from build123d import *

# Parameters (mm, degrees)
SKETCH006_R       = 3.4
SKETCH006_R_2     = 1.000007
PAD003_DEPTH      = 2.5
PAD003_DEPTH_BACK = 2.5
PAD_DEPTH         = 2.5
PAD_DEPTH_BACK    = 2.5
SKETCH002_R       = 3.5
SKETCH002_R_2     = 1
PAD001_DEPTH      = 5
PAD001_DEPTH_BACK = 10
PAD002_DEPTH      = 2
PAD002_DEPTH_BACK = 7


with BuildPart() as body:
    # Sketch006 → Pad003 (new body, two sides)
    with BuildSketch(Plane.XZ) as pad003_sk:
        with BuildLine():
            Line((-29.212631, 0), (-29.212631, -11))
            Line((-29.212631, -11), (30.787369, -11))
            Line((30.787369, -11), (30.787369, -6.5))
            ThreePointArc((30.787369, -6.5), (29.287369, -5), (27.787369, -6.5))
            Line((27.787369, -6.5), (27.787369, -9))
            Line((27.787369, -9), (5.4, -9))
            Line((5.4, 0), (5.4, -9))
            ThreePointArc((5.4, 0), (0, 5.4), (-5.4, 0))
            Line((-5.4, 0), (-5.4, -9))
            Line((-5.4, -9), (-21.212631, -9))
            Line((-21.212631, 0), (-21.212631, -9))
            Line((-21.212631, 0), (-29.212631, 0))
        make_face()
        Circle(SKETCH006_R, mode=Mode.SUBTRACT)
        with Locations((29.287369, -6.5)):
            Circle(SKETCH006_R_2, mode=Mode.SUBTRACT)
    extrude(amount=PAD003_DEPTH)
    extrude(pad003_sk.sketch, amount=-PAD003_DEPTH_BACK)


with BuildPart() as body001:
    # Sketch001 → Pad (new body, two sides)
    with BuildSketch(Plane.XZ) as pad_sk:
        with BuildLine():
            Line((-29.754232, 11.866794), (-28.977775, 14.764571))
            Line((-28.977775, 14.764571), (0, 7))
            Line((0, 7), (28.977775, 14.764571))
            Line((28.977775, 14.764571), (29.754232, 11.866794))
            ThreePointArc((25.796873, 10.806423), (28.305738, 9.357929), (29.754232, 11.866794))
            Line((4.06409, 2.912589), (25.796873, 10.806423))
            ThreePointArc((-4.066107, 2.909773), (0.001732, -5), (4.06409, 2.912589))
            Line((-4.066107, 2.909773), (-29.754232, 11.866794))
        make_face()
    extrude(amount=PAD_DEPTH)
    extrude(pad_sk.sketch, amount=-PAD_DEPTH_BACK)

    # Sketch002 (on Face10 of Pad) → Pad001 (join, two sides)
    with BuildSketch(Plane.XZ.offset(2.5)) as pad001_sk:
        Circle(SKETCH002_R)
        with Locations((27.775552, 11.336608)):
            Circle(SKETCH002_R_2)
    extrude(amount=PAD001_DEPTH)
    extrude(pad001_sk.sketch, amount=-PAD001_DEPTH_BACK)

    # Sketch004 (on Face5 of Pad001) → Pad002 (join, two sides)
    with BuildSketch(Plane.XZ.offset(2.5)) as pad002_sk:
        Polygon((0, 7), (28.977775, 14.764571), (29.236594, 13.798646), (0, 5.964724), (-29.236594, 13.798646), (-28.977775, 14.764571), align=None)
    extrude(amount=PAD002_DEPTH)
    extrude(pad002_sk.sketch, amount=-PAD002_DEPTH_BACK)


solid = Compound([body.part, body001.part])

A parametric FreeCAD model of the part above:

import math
import FreeCAD as App
import Part
import Sketcher

V = App.Vector
Q = App.Units.Quantity


def add_polygon(sketch, points):
    """Adds a closed chain of lines whose ends are joined by coincident constraints."""
    first, n = sketch.GeometryCount, len(points)
    for a, b in zip(points, points[1:] + points[:1]):
        sketch.addGeometry(Part.LineSegment(App.Vector(*a, 0), App.Vector(*b, 0)), False)
    for i in range(n):
        sketch.addConstraint(Sketcher.Constraint("Coincident", first + i, 2, first + (i + 1) % n, 1))

doc = App.newDocument("Part")
body = doc.addObject("PartDesign::Body", "Body")

sketch1 = body.newObject("Sketcher::SketchObject", "Sketch")
sketch1.AttachmentSupport = (doc.getObject("XZ_Plane"), [""])
sketch1.MapMode = "FlatFace"
sketch1.addGeometry([
    Part.LineSegment(V(-29.212631, 0, 0), V(-29.212631, -11, 0)),
    Part.LineSegment(V(-29.212631, -11, 0), V(30.787369, -11, 0)),
    Part.LineSegment(V(30.787369, -11, 0), V(30.787369, -6.5, 0)),
    Part.ArcOfCircle(Part.Circle(V(29.287369, -6.5, 0), V(0, 0, 1), 1.5), math.radians(0), math.radians(180)),
    Part.LineSegment(V(27.787369, -6.5, 0), V(27.787369, -9, 0)),
    Part.LineSegment(V(27.787369, -9, 0), V(5.4, -9, 0)),
    Part.LineSegment(V(5.4, -9, 0), V(5.4, 0, 0)),
    Part.ArcOfCircle(Part.Circle(V(0, 0, 0), V(0, 0, 1), 5.4), math.radians(0), math.radians(180)),
    Part.LineSegment(V(-5.4, 0, 0), V(-5.4, -9, 0)),
    Part.LineSegment(V(-5.4, -9, 0), V(-21.212631, -9, 0)),
    Part.LineSegment(V(-21.212631, -9, 0), V(-21.212631, 0, 0)),
    Part.LineSegment(V(-21.212631, 0, 0), V(-29.212631, 0, 0)),
    Part.Circle(V(29.287369, -6.5, 0), V(0, 0, 1), 1.000007),
    Part.Circle(V(0, 0, 0), V(0, 0, 1), 3.4),
], False)
sketch1.addConstraint([
    Sketcher.Constraint("Coincident", 0, 2, 1, 1),
    Sketcher.Constraint("Coincident", 1, 2, 2, 1),
    Sketcher.Constraint("Tangent", 2, 2, 3, 1),
    Sketcher.Constraint("Tangent", 3, 2, 4, 1),
    Sketcher.Constraint("Coincident", 4, 2, 5, 1),
    Sketcher.Constraint("Coincident", 5, 2, 6, 1),
    Sketcher.Constraint("Tangent", 6, 2, 7, 1),
    Sketcher.Constraint("Tangent", 7, 2, 8, 1),
    Sketcher.Constraint("Coincident", 8, 2, 9, 1),
    Sketcher.Constraint("Coincident", 9, 2, 10, 1),
    Sketcher.Constraint("Coincident", 10, 2, 11, 1),
    Sketcher.Constraint("Coincident", 11, 2, 0, 1),
    Sketcher.Constraint("Vertical", 0),
    Sketcher.Constraint("Horizontal", 1),
    Sketcher.Constraint("Vertical", 2),
    Sketcher.Constraint("Vertical", 4),
    Sketcher.Constraint("Horizontal", 5),
    Sketcher.Constraint("Vertical", 6),
    Sketcher.Constraint("Vertical", 8),
    Sketcher.Constraint("Horizontal", 9),
    Sketcher.Constraint("Vertical", 10),
    Sketcher.Constraint("Horizontal", 11),
    Sketcher.Constraint("Coincident", 7, 3, -1, 1),
    Sketcher.Constraint("Coincident", 13, 3, -1, 1),
    Sketcher.Constraint("Coincident", 12, 3, 3, 3),
    Sketcher.Constraint("PointOnObject", 10, 2, -1),
    Sketcher.Constraint("Horizontal", 5, 2, 8, 2),
    Sketcher.Constraint("Diameter", 13, Q("6.8 mm")),
    Sketcher.Constraint("Radius", 3, Q("1.5 mm")),
    Sketcher.Constraint("Radius", 7, Q("5.4 mm")),
    Sketcher.Constraint("DistanceX", 1, 1, 1, 2, Q("60 mm")),
    Sketcher.Constraint("DistanceX", 11, 2, 11, 1, Q("8 mm")),
    Sketcher.Constraint("DistanceY", 0, 2, 0, 1, Q("11 mm")),
    Sketcher.Constraint("DistanceY", 6, 1, 6, 2, Q("9 mm")),
    Sketcher.Constraint("DistanceY", 2, 1, 2, 2, Q("4.5 mm")),
    Sketcher.Constraint("Diameter", 12, Q("2.000014 mm")),
    Sketcher.Constraint("DistanceX", 5, 2, 5, 1, Q("22.387369 mm")),
])
pad1 = body.newObject("PartDesign::Pad", "Pad")
pad1.Profile = sketch1
pad1.Type = "TwoLengths"
pad1.Length = 2.5
pad1.Length2 = 2.5
body2 = doc.addObject("PartDesign::Body", "Body001")

sketch2 = body2.newObject("Sketcher::SketchObject", "Sketch001")
sketch2.AttachmentSupport = (doc.getObject("XZ_Plane001"), [""])
sketch2.MapMode = "FlatFace"
sketch2.addGeometry([
    Part.LineSegment(V(-28.977775, 14.764571, 0), V(-29.754232, 11.866794, 0)),
    Part.LineSegment(V(-29.754232, 11.866794, 0), V(-4.066107, 2.909773, 0)),
    Part.ArcOfCircle(Part.Circle(V(0, 0, 0), V(0, 0, 1), 5), math.radians(144.411867), math.radians(395.627823)),
    Part.LineSegment(V(4.06409, 2.912589, 0), V(25.796873, 10.806423, 0)),
    Part.ArcOfCircle(Part.Circle(V(27.775552, 11.336609, 0), V(0, 0, 1), 2.04848), math.radians(-165.000002), math.radians(14.999998)),
    Part.LineSegment(V(29.754232, 11.866794, 0), V(28.977775, 14.764571, 0)),
    Part.LineSegment(V(28.977775, 14.764571, 0), V(0, 7, 0)),
    Part.LineSegment(V(0, 7, 0), V(-28.977775, 14.764571, 0)),
], False)
sketch2.addConstraint([
    Sketcher.Constraint("Coincident", 0, 2, 1, 1),
    Sketcher.Constraint("Coincident", 1, 2, 2, 1),
    Sketcher.Constraint("Coincident", 2, 2, 3, 1),
    Sketcher.Constraint("Coincident", 3, 2, 4, 1),
    Sketcher.Constraint("Tangent", 4, 2, 5, 1),
    Sketcher.Constraint("Coincident", 5, 2, 6, 1),
    Sketcher.Constraint("Coincident", 6, 2, 7, 1),
    Sketcher.Constraint("Coincident", 7, 2, 0, 1),
    Sketcher.Constraint("Coincident", 2, 3, -1, 1),
    Sketcher.Constraint("Symmetric", 0, 2, 4, 2, -2),
    Sketcher.Constraint("Symmetric", 5, 2, 7, 2, -2),
    Sketcher.Constraint("PointOnObject", 6, 2, -2),
    Sketcher.Constraint("Perpendicular", 5, 6),
    Sketcher.Constraint("Radius", 2, Q("5 mm")),
    Sketcher.Constraint("Angle", 0, Q("-105 deg")),
    Sketcher.Constraint("Distance", 0, Q("3 mm")),
    Sketcher.Constraint("Distance", 6, Q("30 mm")),
    Sketcher.Constraint("DistanceY", -1, 1, 6, 2, Q("7 mm")),
    Sketcher.Constraint("Radius", 4, Q("2.04848 mm")),
    Sketcher.Constraint("DistanceX", 3, 2, 5, 2, Q("3.180902 mm")),
    Sketcher.Constraint("DistanceY", 1, 2, 7, 2, Q("11.854798 mm")),
    Sketcher.Constraint("Distance", 3, Q("23.121991 mm")),
])
pad2 = body2.newObject("PartDesign::Pad", "Pad001")
pad2.Profile = sketch2
pad2.Type = "TwoLengths"
pad2.Length = 2.5
pad2.Length2 = 2.5

sketch3 = body2.newObject("Sketcher::SketchObject", "Sketch002")
sketch3.AttachmentSupport = (doc.getObject("XZ_Plane001"), [""])
sketch3.MapMode = "FlatFace"
sketch3.AttachmentOffset = App.Placement(V(0, 0, 2.5), App.Rotation())
sketch3.addGeometry([
    Part.Circle(V(0, 0, 0), V(0, 0, 1), 3.5),
    Part.Circle(V(27.775552, 11.336608, 0), V(0, 0, 1), 1),
], False)
sketch3.addConstraint([
    Sketcher.Constraint("Coincident", 0, 3, -1, 1),
    Sketcher.Constraint("Diameter", 0, Q("7 mm")),
    Sketcher.Constraint("Diameter", 1, Q("2 mm")),
    Sketcher.Constraint("DistanceX", -1, 1, 1, 3, Q("27.775552 mm")),
    Sketcher.Constraint("DistanceY", -1, 1, 1, 3, Q("11.336608 mm")),
])
pad3 = body2.newObject("PartDesign::Pad", "Pad002")
pad3.Profile = sketch3
pad3.Type = "TwoLengths"
pad3.Length = 5
pad3.Length2 = 10

sketch4 = body2.newObject("Sketcher::SketchObject", "Sketch003")
sketch4.AttachmentSupport = (doc.getObject("XZ_Plane001"), [""])
sketch4.MapMode = "FlatFace"
sketch4.AttachmentOffset = App.Placement(V(0, 0, 2.5), App.Rotation())
add_polygon(sketch4, [(28.977775, 14.764571), (0, 7), (-28.977775, 14.764571), (-29.236594, 13.798646), (0, 5.964724), (29.236594, 13.798646)])
sketch4.addConstraint([
    Sketcher.Constraint("Symmetric", 2, 2, 4, 2, -2),
    Sketcher.Constraint("Symmetric", 1, 2, 5, 2, -2),
    Sketcher.Constraint("PointOnObject", 0, 2, -2),
    Sketcher.Constraint("PointOnObject", 3, 2, -2),
    Sketcher.Constraint("Perpendicular", 1, 2),
    Sketcher.Constraint("Perpendicular", 2, 3),
    Sketcher.Constraint("Angle", 0, Q("-165.000001 deg")),
    Sketcher.Constraint("Distance", 0, Q("30 mm")),
    Sketcher.Constraint("Distance", 2, Q("0.999999 mm")),
    Sketcher.Constraint("DistanceY", -1, 1, 0, 2, Q("7 mm")),
])
pad4 = body2.newObject("PartDesign::Pad", "Pad003")
pad4.Profile = sketch4
pad4.Type = "TwoLengths"
pad4.Length = 2
pad4.Length2 = 7

doc.recompute()
